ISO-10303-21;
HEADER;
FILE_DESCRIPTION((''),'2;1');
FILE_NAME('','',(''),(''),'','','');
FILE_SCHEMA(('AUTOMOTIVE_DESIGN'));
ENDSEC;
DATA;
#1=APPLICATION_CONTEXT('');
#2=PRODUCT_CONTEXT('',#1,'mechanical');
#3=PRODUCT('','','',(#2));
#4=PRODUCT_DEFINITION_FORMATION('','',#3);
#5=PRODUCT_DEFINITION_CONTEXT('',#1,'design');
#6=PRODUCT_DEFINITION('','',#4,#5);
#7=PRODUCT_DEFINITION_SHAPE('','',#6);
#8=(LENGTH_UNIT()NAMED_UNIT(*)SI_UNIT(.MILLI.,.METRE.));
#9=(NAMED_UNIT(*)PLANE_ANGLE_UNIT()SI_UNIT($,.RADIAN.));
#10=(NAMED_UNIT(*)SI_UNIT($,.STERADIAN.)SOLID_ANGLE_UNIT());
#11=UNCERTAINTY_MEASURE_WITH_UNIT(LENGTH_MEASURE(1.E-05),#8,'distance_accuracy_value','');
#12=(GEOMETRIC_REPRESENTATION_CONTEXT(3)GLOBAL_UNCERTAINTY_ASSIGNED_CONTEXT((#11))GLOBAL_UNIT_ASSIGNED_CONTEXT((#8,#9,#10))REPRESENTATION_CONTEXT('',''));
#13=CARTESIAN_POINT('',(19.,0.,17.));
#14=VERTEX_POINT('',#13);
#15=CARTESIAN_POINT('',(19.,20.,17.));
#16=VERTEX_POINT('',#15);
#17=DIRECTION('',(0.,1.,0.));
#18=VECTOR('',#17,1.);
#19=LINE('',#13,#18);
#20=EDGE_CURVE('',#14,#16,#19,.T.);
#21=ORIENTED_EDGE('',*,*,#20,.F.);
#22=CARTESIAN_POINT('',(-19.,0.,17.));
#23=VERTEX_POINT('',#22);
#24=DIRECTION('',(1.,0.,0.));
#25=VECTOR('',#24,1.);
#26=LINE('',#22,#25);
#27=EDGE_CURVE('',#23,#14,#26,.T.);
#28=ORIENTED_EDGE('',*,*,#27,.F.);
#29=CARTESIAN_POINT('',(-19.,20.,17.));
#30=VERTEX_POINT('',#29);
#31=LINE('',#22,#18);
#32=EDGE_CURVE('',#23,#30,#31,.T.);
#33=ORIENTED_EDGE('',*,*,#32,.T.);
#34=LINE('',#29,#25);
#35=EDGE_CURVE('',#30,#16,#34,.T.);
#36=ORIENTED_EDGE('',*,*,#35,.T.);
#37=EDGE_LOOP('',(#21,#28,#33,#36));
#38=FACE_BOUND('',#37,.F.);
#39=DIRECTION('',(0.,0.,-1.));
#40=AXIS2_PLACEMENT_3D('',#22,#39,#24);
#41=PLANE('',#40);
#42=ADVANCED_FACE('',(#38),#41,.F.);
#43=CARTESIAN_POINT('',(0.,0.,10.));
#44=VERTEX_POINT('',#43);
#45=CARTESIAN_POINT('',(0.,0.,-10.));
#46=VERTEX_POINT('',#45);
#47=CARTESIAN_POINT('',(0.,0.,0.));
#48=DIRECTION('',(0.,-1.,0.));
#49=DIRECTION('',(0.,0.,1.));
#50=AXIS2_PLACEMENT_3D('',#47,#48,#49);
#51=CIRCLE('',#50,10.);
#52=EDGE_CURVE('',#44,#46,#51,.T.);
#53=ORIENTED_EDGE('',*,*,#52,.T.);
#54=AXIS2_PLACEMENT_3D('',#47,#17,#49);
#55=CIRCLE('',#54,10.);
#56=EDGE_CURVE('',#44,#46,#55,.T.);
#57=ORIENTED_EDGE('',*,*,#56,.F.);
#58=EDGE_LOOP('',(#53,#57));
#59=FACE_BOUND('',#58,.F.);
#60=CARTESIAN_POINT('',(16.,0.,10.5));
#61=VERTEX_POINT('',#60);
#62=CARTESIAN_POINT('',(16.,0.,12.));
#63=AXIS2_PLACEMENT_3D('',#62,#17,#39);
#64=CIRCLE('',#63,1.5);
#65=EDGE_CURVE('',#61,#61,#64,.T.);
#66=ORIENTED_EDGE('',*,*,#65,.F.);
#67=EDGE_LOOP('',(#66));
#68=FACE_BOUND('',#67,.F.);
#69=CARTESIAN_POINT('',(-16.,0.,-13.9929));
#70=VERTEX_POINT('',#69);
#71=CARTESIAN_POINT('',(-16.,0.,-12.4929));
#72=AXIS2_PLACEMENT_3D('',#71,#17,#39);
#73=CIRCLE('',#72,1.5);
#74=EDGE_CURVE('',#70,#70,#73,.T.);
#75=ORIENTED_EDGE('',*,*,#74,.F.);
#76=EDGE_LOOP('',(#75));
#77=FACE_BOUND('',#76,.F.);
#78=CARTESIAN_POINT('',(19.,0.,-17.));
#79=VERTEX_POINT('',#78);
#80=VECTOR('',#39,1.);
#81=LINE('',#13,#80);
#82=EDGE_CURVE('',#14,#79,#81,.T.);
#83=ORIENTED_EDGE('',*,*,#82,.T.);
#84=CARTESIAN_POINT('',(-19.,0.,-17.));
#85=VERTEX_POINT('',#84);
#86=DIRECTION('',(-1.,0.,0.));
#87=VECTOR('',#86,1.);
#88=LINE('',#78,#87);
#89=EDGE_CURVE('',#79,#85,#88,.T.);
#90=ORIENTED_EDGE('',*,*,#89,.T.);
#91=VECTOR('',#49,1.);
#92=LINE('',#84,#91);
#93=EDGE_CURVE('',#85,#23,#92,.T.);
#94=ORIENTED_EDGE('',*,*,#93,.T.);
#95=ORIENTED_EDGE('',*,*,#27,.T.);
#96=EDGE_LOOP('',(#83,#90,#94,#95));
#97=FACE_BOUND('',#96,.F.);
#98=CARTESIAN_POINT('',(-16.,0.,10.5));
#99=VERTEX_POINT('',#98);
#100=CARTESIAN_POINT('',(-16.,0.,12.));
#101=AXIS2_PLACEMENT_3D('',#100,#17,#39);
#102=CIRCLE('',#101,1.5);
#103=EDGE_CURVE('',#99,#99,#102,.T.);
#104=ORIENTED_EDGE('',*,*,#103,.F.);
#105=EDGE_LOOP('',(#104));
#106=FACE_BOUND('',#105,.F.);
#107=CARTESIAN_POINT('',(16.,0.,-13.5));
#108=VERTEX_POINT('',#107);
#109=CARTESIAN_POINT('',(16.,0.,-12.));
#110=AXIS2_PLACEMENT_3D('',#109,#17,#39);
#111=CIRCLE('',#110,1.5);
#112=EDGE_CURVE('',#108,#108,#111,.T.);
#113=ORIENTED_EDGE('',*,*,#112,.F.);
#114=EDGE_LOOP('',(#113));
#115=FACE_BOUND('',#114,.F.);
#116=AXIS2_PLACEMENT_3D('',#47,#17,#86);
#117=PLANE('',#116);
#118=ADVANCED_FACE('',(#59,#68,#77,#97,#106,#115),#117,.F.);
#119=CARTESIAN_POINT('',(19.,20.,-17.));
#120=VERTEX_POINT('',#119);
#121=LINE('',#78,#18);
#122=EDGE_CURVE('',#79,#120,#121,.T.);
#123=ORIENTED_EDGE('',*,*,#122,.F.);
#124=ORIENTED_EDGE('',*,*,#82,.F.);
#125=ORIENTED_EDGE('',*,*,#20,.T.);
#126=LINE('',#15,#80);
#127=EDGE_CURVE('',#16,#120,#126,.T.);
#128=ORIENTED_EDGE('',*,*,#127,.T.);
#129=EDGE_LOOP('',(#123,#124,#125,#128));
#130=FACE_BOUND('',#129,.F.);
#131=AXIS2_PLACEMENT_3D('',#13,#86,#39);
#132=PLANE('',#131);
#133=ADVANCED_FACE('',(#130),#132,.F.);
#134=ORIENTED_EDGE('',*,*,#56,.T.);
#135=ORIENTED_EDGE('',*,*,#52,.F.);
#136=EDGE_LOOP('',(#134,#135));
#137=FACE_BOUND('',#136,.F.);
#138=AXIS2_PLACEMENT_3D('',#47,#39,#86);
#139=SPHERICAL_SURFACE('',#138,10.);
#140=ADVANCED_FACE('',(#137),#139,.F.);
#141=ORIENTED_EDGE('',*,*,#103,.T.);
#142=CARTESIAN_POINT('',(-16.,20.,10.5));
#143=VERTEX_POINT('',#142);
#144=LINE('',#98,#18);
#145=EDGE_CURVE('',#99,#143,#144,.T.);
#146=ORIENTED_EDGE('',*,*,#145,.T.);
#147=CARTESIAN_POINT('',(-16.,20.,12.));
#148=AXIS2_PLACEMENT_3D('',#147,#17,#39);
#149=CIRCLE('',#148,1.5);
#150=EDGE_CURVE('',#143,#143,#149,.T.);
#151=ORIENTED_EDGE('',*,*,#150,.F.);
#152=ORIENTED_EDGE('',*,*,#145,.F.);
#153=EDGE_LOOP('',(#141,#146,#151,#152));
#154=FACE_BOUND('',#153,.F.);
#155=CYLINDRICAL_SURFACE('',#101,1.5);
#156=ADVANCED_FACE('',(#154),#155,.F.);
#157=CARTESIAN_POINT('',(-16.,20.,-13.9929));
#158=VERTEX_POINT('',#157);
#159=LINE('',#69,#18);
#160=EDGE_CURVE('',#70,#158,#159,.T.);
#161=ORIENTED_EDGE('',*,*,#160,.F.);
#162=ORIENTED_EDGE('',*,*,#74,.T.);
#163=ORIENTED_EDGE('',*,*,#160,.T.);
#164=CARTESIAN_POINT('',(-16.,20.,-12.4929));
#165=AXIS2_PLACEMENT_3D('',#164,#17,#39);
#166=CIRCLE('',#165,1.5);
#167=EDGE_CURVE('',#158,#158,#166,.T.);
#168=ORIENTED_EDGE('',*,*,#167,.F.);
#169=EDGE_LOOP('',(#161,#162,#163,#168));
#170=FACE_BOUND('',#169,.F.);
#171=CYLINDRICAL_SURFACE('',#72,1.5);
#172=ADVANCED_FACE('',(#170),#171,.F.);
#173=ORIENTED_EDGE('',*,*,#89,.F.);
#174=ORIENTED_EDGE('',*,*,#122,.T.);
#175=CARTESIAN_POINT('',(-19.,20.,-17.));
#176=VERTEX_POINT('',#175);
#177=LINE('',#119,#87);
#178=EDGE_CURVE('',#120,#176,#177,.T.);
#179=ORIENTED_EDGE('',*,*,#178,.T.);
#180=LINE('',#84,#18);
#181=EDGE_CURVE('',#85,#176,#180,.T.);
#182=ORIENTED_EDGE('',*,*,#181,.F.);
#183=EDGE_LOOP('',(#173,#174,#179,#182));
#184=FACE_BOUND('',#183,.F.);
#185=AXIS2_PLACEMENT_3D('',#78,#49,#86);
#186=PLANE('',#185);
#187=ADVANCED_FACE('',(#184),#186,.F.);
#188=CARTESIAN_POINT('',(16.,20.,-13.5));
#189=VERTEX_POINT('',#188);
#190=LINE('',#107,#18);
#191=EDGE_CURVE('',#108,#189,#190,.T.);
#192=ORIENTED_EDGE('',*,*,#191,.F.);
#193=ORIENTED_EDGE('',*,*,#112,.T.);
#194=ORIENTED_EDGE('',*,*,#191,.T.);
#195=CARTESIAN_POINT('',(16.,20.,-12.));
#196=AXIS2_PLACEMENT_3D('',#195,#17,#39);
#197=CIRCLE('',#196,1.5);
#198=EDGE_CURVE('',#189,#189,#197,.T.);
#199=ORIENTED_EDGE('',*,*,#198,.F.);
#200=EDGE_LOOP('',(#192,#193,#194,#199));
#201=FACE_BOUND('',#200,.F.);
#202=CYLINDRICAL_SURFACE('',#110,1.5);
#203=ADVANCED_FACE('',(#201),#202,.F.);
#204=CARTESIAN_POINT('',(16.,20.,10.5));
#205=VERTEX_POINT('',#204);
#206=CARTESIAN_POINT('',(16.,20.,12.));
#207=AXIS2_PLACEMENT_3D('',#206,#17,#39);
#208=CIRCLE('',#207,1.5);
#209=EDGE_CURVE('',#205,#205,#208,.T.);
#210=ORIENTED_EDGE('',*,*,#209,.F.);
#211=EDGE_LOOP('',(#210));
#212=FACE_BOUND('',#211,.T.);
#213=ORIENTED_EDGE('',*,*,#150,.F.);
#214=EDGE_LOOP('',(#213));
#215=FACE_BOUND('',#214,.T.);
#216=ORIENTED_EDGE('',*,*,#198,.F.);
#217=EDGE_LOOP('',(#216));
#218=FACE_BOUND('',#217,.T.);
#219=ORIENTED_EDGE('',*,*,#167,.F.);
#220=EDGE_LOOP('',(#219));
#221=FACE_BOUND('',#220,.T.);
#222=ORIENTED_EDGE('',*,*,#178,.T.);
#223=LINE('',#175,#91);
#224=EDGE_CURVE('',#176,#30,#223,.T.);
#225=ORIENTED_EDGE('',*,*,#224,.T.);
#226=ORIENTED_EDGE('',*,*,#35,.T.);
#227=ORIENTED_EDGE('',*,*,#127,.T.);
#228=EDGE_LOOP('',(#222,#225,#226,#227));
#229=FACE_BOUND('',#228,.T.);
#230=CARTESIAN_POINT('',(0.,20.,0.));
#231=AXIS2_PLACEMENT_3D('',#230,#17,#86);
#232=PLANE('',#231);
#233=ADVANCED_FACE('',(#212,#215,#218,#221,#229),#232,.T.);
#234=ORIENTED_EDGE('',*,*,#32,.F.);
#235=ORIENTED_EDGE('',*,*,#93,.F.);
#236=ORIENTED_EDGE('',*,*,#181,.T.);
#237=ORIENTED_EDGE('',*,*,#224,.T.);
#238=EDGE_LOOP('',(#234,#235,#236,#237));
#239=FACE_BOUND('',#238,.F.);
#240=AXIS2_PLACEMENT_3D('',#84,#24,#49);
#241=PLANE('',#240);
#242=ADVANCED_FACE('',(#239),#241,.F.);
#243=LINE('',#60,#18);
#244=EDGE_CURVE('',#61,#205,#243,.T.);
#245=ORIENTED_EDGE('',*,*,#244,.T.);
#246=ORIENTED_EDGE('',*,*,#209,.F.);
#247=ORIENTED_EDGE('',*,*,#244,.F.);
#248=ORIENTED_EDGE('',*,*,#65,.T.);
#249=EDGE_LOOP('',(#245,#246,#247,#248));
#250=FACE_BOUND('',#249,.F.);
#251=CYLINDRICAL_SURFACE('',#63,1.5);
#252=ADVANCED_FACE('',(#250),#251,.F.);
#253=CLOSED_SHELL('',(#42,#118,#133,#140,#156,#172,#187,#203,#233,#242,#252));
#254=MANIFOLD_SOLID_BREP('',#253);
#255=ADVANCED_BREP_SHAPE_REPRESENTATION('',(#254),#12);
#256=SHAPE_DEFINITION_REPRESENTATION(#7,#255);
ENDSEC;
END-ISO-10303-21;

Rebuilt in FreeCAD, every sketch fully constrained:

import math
import FreeCAD as App
import Part
import Sketcher

V = App.Vector


def add_polygon(sketch, points):
    """Adds a closed chain of lines whose ends are joined by coincident constraints."""
    first, n = sketch.GeometryCount, len(points)
    for a, b in zip(points, points[1:] + points[:1]):
        sketch.addGeometry(Part.LineSegment(App.Vector(*a, 0), App.Vector(*b, 0)), False)
    for i in range(n):
        sketch.addConstraint(Sketcher.Constraint("Coincident", first + i, 2, first + (i + 1) % n, 1))

doc = App.newDocument("Part")
body = doc.addObject("PartDesign::Body", "Body")

# Sketch on XZ plane
sketch1 = body.newObject("Sketcher::SketchObject", "Sketch")
sketch1.AttachmentSupport = (doc.getObject("XZ_Plane"), [""])
sketch1.MapMode = "FlatFace"
add_polygon(sketch1, [(19, 17), (19, -17), (-19, -17), (-19, 17)])  # lines 0-3
sketch1.addConstraint([
    Sketcher.Constraint("Vertical", 0),
    Sketcher.Constraint("Horizontal", 1),
    Sketcher.Constraint("Vertical", 2),
    Sketcher.Constraint("Horizontal", 3),
    Sketcher.Constraint("Symmetric", 0, 2, 2, 2, -1, 1),
    Sketcher.Constraint("DistanceX", 1, 2, 1, 1, 38.0),
    Sketcher.Constraint("DistanceY", 0, 2, 0, 1, 34.0),
])
pad1 = body.newObject("PartDesign::Pad", "Pad")
pad1.Profile = sketch1
pad1.Length = 20
pad1.Reversed = True

# Sketch on XZ plane
sketch2 = body.newObject("Sketcher::SketchObject", "Sketch001")
sketch2.AttachmentSupport = (doc.getObject("XZ_Plane"), [""])
sketch2.MapMode = "FlatFace"
sketch2.addGeometry([
    Part.LineSegment(V(0, -10, 0), V(0, 10, 0)),
    Part.ArcOfCircle(Part.Circle(V(0, 0, 0), V(0, 0, 1), 10), math.radians(90), math.radians(270)),
], False)
sketch2.addConstraint([
    Sketcher.Constraint("Coincident", 0, 1, 1, 2),
    Sketcher.Constraint("Coincident", 1, 1, 0, 2),
    Sketcher.Constraint("Vertical", 0),
    Sketcher.Constraint("Coincident", 1, 3, -1, 1),
    Sketcher.Constraint("PointOnObject", 0, 1, -2),
    Sketcher.Constraint("Radius", 1, 10.0),
])
groove = body.newObject("PartDesign::Groove", "Groove")
groove.Profile = sketch2
groove.ReferenceAxis = (sketch2, ["V_Axis"])
groove.Angle = 180
groove.Reversed = True

# Sketch on XZ plane
sketch3 = body.newObject("Sketcher::SketchObject", "Sketch002")
sketch3.AttachmentSupport = (doc.getObject("XZ_Plane"), [""])
sketch3.MapMode = "FlatFace"
sketch3.addGeometry([
    Part.Circle(V(-16, -12.5, 0), V(0, 0, 1), 1.5),
    Part.Circle(V(-16, 12, 0), V(0, 0, 1), 1.5),
    Part.Circle(V(16, 12, 0), V(0, 0, 1), 1.5),
    Part.Circle(V(16, -12, 0), V(0, 0, 1), 1.5),
], False)
sketch3.addConstraint([
    Sketcher.Constraint("Equal", 0, 1),
    Sketcher.Constraint("Equal", 1, 2),
    Sketcher.Constraint("Equal", 2, 3),
    Sketcher.Constraint("Symmetric", 1, 3, 3, 3, -1, 1),
    Sketcher.Constraint("Symmetric", 1, 3, 2, 3, -2),
    Sketcher.Constraint("Vertical", 0, 3, 1, 3),
    Sketcher.Constraint("Diameter", 0, 3.0),
    Sketcher.Constraint("DistanceX", 0, 3, -1, 1, 16.0),
    Sketcher.Constraint("DistanceY", -1, 1, 1, 3, 12.0),
    Sketcher.Constraint("DistanceY", 0, 3, -1, 1, 12.493),
])
doc.recompute()
hole = body.newObject("PartDesign::Hole", "Hole")
hole.Profile = sketch3
hole.ThreadType = "None"
hole.Diameter = 3
hole.DepthType = "ThroughAll"

doc.recompute()
